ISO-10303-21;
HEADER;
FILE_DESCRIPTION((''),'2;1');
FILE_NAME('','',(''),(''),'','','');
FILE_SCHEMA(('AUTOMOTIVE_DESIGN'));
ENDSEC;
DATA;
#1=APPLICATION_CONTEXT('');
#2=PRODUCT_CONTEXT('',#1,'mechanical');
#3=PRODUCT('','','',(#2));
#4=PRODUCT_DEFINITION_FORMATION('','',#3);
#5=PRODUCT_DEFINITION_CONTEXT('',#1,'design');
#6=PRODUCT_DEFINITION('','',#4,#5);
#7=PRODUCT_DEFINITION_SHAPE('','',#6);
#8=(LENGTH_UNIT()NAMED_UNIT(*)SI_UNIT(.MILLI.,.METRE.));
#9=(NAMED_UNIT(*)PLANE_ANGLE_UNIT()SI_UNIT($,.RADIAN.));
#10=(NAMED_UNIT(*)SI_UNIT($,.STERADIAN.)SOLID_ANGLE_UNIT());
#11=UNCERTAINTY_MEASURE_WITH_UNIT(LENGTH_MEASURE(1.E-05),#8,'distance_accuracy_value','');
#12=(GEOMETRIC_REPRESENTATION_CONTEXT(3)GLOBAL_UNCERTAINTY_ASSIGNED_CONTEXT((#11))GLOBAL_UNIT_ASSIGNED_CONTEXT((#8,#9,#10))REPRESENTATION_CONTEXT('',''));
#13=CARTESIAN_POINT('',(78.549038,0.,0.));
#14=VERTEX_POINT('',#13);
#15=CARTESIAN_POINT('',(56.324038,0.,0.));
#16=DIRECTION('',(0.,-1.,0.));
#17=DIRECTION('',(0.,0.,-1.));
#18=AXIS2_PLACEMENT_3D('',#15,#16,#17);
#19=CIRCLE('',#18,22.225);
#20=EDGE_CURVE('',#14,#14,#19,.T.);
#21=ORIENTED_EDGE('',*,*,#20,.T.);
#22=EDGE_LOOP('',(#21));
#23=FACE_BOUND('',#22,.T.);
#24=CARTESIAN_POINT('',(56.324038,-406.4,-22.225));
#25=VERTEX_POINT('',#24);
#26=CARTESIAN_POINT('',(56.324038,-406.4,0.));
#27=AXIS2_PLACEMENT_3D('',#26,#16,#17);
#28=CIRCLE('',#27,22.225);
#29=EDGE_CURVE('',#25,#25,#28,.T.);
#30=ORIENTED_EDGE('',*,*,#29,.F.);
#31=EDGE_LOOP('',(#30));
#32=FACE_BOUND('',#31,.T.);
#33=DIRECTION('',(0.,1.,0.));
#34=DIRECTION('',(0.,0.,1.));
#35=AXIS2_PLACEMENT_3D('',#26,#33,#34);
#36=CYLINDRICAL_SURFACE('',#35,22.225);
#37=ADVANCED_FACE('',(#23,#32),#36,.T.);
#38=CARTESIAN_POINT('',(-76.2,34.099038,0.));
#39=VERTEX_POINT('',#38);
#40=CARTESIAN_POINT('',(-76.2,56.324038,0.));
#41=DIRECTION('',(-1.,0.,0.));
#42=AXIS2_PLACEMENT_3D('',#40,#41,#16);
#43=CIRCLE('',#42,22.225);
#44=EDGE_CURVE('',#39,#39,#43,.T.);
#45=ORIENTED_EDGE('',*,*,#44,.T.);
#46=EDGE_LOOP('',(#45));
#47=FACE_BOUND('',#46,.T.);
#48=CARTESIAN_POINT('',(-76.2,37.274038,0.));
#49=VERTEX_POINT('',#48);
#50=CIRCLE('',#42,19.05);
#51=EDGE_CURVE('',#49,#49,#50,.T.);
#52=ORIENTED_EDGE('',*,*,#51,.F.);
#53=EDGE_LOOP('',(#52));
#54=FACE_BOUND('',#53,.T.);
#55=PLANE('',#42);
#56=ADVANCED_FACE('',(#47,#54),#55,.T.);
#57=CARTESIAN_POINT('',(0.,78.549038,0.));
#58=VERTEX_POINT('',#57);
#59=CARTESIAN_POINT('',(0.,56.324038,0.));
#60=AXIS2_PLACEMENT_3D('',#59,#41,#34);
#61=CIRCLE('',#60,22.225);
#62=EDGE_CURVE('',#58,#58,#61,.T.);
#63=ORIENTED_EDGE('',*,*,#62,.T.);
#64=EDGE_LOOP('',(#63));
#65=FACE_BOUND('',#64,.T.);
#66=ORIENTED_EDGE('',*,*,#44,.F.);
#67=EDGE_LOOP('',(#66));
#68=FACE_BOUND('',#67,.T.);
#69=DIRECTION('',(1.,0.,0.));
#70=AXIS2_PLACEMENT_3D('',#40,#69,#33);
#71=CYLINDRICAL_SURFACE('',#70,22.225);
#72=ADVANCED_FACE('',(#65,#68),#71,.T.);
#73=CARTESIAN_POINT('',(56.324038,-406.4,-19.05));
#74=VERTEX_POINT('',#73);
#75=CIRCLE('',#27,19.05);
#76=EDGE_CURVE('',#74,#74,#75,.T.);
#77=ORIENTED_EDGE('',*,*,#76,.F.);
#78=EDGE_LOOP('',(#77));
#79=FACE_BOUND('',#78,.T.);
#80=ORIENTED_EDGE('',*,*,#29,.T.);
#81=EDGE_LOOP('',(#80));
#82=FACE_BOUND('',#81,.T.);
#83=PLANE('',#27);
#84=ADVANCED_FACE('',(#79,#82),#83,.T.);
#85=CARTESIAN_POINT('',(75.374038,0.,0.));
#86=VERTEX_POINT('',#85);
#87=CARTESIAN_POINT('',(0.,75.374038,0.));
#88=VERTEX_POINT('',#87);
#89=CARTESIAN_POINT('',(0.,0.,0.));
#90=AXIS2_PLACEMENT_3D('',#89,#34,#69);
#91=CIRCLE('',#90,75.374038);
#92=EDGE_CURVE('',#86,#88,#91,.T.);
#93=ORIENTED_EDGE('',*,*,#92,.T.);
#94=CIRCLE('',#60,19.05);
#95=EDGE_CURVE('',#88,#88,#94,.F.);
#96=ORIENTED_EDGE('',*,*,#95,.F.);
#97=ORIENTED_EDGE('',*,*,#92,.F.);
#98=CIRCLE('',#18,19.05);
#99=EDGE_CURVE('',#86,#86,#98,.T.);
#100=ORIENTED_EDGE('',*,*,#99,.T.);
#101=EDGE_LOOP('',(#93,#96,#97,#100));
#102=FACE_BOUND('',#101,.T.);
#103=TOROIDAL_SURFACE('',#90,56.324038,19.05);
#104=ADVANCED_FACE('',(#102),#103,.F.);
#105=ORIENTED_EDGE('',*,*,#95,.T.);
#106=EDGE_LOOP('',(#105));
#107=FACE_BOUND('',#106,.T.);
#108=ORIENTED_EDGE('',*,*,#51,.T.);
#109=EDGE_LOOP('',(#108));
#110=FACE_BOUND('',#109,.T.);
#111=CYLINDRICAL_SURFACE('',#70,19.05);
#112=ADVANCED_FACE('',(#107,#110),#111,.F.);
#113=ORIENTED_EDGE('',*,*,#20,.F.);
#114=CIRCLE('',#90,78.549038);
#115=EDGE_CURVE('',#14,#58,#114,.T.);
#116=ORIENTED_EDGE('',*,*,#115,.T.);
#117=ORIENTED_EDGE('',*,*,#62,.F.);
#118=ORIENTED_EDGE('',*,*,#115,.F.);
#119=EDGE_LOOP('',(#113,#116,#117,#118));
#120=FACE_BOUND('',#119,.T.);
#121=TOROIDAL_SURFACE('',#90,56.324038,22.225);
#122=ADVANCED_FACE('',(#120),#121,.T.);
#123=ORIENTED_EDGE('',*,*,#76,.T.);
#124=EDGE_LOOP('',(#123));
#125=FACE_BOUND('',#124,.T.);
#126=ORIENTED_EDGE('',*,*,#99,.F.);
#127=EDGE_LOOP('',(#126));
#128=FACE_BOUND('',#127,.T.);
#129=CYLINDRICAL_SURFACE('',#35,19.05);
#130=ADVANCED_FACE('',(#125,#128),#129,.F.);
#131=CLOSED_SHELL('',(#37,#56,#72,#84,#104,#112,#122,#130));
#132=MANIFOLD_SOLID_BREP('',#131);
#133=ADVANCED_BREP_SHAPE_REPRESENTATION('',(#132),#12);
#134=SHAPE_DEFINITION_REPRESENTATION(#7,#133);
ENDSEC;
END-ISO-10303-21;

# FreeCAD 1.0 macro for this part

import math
import FreeCAD as App
import Part
import Sketcher
Q = App.Units.Quantity

doc = App.newDocument("Part")
body = doc.addObject("PartDesign::Body", "Body")

# Sketch on XZ plane
sketch1 = doc.addObject("Sketcher::SketchObject", "Sketch")
body.addObject(sketch1)
sketch1.AttachmentSupport = (doc.XZ_Plane, [""])
sketch1.MapMode = "FlatFace"
sketch1.addGeometry([
    Part.Circle(App.Vector(56, 0, 0), App.Vector(0, 0, 1), 22),
    Part.Circle(App.Vector(56, 0, 0), App.Vector(0, 0, 1), 19),
], False)
sketch1.addConstraint([
    Sketcher.Constraint("Coincident", 1, 3, 0, 3),
    Sketcher.Constraint("PointOnObject", 0, 3, -1),
    Sketcher.Constraint("Diameter", 1, Q("1.5 in")),
    Sketcher.Constraint("Diameter", 0, Q("1.75 in")),
    Sketcher.Constraint("DistanceX", -1, 1, 0, 3, Q("56.324038 mm")),
])

# Sketch on XY plane
sketch2 = doc.addObject("Sketcher::SketchObject", "Sketch001")
body.addObject(sketch2)
sketch2.AttachmentSupport = (doc.XY_Plane, [""])
sketch2.MapMode = "FlatFace"
sketch2.addGeometry(Part.ArcOfCircle(Part.Circle(App.Vector(0, 0, 0), App.Vector(0, 0, 1), 56), math.radians(0), math.radians(90)), False)
sketch2.addConstraint([
    Sketcher.Constraint("Coincident", 0, 3, -1, 1),
    Sketcher.Constraint("PointOnObject", 0, 1, -1),
    Sketcher.Constraint("PointOnObject", 0, 2, -2),
    Sketcher.Constraint("Radius", 0, Q("56.324038 mm")),
])
doc.recompute()

additivepipe = doc.addObject("PartDesign::AdditivePipe", "AdditivePipe")
body.addObject(additivepipe)
additivepipe.Profile = sketch1
additivepipe.Spine = (sketch2, ["Edge1"])

# Sketch on YZ plane
sketch3 = doc.addObject("Sketcher::SketchObject", "Sketch002")
body.addObject(sketch3)
sketch3.AttachmentSupport = (doc.YZ_Plane, [""])
sketch3.MapMode = "FlatFace"
sketch3.addGeometry([
    Part.Circle(App.Vector(56, 0, 0), App.Vector(0, 0, 1), 22),
    Part.Circle(App.Vector(56, 0, 0), App.Vector(0, 0, 1), 19),
], False)
sketch3.addConstraint([
    Sketcher.Constraint("Coincident", 1, 3, 0, 3),
    Sketcher.Constraint("PointOnObject", 0, 3, -1),
    Sketcher.Constraint("Diameter", 1, Q("1.5 in")),
    Sketcher.Constraint("Diameter", 0, Q("1.75 in")),
    Sketcher.Constraint("DistanceX", -1, 1, 0, 3, Q("56.324038 mm")),
])
pad1 = doc.addObject("PartDesign::Pad", "Pad")
body.addObject(pad1)
pad1.Profile = sketch3
pad1.Length = Q("3 in")
pad1.Reversed = True

# Sketch on XZ plane
sketch4 = doc.addObject("Sketcher::SketchObject", "Sketch003")
body.addObject(sketch4)
sketch4.AttachmentSupport = (doc.XZ_Plane, [""])
sketch4.MapMode = "FlatFace"
sketch4.addGeometry([
    Part.Circle(App.Vector(56, 0, 0), App.Vector(0, 0, 1), 22),
    Part.Circle(App.Vector(56, 0, 0), App.Vector(0, 0, 1), 19),
], False)
sketch4.addConstraint([
    Sketcher.Constraint("Coincident", 1, 3, 0, 3),
    Sketcher.Constraint("PointOnObject", 0, 3, -1),
    Sketcher.Constraint("Diameter", 1, Q("1.5 in")),
    Sketcher.Constraint("Diameter", 0, Q("1.75 in")),
    Sketcher.Constraint("DistanceX", -1, 1, 0, 3, Q("56.324038 mm")),
])
pad2 = doc.addObject("PartDesign::Pad", "Pad001")
body.addObject(pad2)
pad2.Profile = sketch4
pad2.Length = Q("16 in")

doc.recompute()
